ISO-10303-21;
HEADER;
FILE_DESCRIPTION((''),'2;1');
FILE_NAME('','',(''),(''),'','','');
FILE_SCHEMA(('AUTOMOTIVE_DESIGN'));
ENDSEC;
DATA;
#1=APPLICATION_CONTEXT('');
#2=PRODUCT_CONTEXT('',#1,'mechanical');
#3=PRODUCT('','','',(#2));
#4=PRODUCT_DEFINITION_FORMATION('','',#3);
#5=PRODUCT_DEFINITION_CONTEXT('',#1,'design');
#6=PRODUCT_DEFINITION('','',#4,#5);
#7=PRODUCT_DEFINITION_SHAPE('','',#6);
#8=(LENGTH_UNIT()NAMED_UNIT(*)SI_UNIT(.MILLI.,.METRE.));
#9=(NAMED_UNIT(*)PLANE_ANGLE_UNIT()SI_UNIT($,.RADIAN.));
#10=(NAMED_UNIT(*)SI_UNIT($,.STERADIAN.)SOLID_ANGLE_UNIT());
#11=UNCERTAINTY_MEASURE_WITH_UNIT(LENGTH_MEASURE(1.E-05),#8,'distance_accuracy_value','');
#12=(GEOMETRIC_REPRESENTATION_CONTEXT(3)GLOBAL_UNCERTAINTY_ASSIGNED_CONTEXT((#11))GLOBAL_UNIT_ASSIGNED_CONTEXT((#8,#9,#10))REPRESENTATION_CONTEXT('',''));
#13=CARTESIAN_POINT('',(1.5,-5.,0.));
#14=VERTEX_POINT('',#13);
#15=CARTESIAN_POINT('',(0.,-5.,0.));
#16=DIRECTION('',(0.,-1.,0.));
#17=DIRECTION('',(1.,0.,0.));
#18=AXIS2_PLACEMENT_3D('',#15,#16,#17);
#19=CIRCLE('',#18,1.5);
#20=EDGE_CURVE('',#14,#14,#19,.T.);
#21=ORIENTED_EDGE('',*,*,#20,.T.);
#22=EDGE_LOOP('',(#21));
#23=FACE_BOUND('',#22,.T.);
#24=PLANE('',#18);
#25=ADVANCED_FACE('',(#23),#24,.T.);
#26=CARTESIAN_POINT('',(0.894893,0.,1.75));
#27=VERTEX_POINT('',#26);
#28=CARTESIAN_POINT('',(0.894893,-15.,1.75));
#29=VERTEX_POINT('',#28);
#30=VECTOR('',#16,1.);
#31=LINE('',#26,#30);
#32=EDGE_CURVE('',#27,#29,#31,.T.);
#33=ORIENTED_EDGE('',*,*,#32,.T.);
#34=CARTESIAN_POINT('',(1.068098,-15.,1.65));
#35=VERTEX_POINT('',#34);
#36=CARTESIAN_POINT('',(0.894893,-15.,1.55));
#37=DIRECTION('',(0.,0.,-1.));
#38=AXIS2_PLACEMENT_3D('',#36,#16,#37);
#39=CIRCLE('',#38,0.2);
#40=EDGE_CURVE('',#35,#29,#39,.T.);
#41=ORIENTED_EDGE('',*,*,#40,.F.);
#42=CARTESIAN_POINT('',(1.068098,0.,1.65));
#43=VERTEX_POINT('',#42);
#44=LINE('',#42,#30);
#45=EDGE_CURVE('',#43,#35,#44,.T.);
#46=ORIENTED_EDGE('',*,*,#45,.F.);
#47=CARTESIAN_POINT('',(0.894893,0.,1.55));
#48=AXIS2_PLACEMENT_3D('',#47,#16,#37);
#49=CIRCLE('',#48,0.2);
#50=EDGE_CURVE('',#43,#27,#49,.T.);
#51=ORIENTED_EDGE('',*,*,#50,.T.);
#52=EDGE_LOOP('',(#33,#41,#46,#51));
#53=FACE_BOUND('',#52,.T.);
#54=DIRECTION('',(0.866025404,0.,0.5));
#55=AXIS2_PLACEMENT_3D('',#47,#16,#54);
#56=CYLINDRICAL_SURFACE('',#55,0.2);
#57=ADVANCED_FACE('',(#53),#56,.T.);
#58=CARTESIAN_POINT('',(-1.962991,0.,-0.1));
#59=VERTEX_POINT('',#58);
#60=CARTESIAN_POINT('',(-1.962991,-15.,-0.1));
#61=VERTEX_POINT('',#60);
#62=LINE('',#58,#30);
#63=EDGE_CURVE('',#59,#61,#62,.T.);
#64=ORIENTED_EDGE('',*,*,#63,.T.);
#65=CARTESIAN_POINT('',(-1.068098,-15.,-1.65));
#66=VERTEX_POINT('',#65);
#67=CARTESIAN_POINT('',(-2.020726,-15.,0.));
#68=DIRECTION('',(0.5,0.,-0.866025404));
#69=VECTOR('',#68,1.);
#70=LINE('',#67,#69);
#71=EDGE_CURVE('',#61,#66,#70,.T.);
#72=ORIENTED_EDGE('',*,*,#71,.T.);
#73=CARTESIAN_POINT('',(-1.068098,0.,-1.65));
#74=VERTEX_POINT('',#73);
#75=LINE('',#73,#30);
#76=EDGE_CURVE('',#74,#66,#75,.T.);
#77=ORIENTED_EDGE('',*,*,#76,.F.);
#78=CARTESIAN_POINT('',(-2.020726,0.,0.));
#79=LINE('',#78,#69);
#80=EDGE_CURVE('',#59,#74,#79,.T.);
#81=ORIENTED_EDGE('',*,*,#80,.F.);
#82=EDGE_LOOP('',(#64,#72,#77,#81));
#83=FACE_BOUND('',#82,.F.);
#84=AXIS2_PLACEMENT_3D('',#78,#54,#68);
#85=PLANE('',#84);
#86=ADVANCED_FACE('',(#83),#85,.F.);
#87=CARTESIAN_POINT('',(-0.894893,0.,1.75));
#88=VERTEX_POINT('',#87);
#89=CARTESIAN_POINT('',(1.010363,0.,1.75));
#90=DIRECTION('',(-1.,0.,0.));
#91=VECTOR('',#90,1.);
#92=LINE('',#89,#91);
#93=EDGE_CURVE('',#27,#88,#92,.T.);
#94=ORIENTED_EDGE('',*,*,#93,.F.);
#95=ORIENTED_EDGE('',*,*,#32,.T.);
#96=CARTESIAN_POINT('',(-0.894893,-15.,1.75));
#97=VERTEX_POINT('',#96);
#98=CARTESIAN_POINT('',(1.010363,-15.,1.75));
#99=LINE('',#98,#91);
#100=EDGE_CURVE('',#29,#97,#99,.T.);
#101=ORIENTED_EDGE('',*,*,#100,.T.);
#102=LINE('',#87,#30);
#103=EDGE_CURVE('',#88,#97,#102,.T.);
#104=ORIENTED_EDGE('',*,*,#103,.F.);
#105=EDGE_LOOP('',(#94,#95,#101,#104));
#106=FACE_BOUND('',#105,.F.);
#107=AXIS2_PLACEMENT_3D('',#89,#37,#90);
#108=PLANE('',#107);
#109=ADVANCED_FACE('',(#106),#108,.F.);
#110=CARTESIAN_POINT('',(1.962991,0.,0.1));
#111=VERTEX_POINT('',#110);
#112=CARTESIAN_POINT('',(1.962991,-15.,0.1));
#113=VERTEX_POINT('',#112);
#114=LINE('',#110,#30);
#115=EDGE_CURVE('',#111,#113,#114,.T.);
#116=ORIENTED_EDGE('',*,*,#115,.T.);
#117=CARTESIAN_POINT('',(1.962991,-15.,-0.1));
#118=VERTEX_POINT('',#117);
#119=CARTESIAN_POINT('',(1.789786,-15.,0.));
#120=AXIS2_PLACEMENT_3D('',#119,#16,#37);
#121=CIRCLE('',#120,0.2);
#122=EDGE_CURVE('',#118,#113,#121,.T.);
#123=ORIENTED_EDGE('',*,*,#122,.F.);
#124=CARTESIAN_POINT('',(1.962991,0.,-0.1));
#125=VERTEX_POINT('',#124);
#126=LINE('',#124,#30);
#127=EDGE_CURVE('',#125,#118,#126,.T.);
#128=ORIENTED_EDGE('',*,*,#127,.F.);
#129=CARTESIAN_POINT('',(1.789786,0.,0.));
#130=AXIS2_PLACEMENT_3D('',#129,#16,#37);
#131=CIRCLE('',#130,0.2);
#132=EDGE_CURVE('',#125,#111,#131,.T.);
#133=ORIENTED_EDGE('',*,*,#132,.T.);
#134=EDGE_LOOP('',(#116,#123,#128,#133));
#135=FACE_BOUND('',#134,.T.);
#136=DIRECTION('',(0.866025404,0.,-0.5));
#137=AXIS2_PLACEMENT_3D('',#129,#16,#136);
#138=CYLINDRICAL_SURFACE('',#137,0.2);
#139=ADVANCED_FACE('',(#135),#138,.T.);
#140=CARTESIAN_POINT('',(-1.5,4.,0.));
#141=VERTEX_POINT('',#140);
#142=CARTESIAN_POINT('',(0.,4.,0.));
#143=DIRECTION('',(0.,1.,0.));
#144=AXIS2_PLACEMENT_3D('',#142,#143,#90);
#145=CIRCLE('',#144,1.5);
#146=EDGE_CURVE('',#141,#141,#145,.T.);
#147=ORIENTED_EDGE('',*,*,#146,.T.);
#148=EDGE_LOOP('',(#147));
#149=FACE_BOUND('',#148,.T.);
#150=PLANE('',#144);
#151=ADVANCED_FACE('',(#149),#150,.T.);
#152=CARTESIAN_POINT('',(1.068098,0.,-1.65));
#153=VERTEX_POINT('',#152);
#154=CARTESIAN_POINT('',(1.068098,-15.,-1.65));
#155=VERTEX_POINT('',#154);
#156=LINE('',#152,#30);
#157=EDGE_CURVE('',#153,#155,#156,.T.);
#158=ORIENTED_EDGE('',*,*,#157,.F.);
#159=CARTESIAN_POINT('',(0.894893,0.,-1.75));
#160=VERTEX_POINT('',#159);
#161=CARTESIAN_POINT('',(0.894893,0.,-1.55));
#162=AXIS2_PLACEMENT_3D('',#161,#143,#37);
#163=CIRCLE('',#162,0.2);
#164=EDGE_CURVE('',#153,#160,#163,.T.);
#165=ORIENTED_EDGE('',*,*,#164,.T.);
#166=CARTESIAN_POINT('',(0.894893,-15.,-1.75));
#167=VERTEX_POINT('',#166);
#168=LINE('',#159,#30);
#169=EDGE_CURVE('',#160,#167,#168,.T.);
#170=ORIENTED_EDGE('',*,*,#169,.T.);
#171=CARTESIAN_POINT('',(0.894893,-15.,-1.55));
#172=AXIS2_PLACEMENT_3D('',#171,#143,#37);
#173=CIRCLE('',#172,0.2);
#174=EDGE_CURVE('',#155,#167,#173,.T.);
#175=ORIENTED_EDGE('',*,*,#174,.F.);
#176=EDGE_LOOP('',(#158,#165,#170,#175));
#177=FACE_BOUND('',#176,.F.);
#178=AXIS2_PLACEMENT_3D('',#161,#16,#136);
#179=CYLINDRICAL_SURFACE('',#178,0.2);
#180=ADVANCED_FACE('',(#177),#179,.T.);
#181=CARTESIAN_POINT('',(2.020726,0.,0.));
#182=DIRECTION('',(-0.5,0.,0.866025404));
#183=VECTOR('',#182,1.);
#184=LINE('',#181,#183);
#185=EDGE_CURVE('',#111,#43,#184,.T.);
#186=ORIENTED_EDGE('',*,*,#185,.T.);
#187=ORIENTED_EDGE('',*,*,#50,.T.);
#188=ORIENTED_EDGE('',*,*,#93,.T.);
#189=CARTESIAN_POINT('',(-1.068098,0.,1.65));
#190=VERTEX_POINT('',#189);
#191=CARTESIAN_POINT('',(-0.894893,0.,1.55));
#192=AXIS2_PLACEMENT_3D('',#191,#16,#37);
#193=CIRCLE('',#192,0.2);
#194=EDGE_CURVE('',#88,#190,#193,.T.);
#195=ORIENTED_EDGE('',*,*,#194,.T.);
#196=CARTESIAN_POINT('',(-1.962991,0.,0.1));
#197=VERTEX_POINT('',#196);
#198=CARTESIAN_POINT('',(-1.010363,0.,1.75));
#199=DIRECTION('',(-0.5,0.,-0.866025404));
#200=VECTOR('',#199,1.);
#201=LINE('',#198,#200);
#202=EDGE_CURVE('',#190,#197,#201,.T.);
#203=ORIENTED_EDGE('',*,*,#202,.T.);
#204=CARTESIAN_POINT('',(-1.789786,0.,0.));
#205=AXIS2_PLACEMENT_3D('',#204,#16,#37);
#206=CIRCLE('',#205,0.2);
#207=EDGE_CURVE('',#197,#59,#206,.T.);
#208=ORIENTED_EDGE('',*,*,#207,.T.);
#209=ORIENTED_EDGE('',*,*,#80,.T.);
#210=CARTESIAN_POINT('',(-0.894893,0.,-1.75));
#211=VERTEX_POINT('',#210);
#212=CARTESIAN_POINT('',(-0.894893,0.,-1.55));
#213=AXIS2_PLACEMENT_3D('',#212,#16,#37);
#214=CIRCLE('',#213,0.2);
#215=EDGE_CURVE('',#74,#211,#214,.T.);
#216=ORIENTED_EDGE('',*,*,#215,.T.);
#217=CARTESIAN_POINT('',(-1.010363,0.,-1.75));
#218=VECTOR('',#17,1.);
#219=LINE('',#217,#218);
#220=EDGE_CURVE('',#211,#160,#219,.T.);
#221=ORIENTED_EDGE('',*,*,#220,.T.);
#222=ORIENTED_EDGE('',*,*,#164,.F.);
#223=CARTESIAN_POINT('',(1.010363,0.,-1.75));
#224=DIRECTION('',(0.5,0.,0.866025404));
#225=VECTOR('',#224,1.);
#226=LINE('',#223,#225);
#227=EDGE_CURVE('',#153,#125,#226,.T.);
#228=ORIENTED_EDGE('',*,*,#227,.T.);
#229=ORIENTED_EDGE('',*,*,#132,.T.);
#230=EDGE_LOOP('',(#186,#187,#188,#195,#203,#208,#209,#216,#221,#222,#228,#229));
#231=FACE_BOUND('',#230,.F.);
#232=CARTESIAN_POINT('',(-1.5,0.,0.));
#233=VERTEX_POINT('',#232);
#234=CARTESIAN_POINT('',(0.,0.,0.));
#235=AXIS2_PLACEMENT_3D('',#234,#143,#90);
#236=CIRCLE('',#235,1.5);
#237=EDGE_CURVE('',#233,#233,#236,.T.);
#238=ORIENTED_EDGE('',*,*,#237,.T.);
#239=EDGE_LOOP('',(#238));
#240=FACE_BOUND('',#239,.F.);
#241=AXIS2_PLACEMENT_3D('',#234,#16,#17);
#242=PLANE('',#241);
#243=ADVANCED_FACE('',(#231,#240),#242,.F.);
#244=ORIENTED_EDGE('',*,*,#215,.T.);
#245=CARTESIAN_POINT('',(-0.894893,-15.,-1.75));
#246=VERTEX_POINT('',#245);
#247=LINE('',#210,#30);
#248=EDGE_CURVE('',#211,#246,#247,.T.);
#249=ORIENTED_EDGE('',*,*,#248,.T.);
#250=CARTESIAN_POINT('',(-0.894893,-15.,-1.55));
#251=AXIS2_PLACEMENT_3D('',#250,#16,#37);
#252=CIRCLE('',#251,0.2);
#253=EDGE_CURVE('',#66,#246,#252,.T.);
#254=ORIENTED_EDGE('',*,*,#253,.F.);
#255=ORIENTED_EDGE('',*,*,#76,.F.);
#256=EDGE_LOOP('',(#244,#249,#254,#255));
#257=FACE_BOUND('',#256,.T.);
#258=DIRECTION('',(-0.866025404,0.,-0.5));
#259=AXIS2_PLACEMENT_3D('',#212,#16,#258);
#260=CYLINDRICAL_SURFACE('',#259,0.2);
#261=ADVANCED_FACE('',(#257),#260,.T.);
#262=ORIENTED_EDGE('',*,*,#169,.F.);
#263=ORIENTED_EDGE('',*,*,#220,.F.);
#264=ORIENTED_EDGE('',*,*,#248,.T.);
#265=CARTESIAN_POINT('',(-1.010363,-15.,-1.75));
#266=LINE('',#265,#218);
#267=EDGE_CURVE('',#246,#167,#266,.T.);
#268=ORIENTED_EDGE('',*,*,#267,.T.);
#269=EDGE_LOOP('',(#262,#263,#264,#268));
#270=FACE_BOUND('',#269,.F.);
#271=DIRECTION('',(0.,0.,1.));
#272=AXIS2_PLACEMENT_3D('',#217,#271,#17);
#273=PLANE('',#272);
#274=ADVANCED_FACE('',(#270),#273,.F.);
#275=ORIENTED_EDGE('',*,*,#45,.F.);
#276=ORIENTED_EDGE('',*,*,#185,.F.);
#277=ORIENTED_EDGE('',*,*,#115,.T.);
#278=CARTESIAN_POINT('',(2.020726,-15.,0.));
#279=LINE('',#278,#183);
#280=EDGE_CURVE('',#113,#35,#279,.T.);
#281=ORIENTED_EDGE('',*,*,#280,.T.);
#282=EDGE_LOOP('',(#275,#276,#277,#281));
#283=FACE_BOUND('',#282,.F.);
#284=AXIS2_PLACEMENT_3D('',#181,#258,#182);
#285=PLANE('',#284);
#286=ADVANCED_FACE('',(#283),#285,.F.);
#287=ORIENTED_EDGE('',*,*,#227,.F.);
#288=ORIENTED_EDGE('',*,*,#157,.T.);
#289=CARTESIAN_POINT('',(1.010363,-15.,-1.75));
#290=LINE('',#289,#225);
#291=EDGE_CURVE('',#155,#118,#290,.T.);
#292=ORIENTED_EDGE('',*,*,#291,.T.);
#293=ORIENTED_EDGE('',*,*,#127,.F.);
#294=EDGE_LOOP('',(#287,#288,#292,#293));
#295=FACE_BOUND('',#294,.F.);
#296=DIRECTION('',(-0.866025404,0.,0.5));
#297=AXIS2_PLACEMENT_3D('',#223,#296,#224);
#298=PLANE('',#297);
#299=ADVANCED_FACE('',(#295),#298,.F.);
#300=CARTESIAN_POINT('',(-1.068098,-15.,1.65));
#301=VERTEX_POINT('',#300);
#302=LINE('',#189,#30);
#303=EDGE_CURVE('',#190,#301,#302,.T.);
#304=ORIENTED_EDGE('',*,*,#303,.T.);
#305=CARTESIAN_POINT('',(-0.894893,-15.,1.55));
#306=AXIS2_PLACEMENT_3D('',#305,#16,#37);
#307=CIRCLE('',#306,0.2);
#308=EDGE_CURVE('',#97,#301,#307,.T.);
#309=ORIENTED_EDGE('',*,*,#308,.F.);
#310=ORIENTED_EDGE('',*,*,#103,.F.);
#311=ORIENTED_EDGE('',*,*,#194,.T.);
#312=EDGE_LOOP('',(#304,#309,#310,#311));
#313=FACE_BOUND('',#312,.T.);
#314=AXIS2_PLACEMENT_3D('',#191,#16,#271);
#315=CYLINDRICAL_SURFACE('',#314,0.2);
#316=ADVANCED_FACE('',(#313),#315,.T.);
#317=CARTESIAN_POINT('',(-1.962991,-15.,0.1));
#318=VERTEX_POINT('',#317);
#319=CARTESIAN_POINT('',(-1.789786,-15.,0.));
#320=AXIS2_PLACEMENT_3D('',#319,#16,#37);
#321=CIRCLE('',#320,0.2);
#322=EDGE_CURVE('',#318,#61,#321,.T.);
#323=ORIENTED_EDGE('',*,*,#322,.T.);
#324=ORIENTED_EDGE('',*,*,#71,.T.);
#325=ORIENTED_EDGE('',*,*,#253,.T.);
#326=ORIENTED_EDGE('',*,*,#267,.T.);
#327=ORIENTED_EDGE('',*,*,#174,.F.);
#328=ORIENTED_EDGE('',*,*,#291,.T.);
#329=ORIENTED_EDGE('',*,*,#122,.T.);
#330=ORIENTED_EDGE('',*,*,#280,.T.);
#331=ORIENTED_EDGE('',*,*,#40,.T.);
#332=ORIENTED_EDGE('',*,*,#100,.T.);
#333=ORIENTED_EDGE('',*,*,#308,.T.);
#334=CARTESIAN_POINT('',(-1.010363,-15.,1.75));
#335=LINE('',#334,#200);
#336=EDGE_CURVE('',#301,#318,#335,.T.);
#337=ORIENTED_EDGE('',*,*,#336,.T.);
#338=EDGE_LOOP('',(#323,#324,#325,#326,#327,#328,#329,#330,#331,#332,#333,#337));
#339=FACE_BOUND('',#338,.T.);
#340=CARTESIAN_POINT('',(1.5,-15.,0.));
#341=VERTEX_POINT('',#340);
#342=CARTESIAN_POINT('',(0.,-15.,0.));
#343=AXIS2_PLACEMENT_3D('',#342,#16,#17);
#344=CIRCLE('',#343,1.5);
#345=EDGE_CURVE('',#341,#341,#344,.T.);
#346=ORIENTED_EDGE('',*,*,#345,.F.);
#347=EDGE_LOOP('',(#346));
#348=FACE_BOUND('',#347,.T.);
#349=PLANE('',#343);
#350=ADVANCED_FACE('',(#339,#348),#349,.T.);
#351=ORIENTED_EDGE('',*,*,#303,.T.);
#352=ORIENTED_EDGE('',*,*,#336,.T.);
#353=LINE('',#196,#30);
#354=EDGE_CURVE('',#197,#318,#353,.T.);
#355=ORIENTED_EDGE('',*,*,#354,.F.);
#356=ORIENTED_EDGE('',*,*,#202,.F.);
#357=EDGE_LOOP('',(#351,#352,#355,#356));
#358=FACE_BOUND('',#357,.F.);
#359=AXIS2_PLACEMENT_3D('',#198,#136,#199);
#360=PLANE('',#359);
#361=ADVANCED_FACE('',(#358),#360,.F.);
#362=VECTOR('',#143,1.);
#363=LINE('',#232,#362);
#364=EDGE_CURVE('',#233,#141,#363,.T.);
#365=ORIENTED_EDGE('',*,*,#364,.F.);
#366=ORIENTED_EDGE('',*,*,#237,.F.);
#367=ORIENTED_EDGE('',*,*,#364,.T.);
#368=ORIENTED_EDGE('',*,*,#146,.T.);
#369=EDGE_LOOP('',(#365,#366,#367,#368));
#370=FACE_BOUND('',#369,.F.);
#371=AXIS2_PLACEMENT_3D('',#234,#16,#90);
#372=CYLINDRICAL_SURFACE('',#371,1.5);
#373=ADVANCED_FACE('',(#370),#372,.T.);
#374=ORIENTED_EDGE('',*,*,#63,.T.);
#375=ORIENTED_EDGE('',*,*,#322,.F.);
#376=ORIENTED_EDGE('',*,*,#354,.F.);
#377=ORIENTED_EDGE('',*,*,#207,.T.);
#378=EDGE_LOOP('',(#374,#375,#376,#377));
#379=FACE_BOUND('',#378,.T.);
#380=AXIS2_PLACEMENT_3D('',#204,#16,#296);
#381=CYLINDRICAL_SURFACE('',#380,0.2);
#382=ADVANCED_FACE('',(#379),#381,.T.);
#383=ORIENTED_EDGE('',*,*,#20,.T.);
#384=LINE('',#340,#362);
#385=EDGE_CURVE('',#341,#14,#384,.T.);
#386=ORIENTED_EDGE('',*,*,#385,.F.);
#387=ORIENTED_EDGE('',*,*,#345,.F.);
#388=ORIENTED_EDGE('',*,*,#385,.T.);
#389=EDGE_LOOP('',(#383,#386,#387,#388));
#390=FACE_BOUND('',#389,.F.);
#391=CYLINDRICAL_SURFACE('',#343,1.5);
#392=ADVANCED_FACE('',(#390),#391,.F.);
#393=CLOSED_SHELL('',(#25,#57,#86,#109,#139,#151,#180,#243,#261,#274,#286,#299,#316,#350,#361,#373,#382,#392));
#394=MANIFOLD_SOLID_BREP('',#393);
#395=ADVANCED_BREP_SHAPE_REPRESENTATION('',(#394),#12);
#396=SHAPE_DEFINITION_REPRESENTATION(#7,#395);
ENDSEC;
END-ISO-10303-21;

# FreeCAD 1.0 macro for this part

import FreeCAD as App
import Part
import Sketcher

V = App.Vector
Q = App.Units.Quantity


def edges_at(feature, points):
    """Names of the edges that pass closest to the given points."""
    edges = feature.Shape.Edges
    near = lambda p: min(range(len(edges)), key=lambda i: edges[i].distToShape(Part.Vertex(*p))[0])
    return sorted({f"Edge{near(p) + 1}" for p in points})

doc = App.newDocument("Part")
body = doc.addObject("PartDesign::Body", "Body")

# Sketch on XZ plane
sketch1 = doc.addObject("Sketcher::SketchObject", "Sketch")
body.addObject(sketch1)
sketch1.AttachmentSupport = (doc.XZ_Plane, [""])
sketch1.MapMode = "FlatFace"
sketch1.addGeometry(Part.LineSegment(V(1, -1.8, 0), V(2, 0, 0)), False)
sketch1.addGeometry(Part.LineSegment(V(2, 0, 0), V(1, 1.8, 0)), False)
sketch1.addGeometry(Part.LineSegment(V(1, 1.8, 0), V(-1, 1.8, 0)), False)
sketch1.addGeometry(Part.LineSegment(V(-1, 1.8, 0), V(-2, 0, 0)), False)
sketch1.addGeometry(Part.LineSegment(V(-2, 0, 0), V(-1, -1.8, 0)), False)
sketch1.addGeometry(Part.LineSegment(V(-1, -1.8, 0), V(1, -1.8, 0)), False)
sketch1.addConstraint(Sketcher.Constraint("Coincident", 0, 2, 1, 1))
sketch1.addConstraint(Sketcher.Constraint("Coincident", 1, 2, 2, 1))
sketch1.addConstraint(Sketcher.Constraint("Coincident", 2, 2, 3, 1))
sketch1.addConstraint(Sketcher.Constraint("Coincident", 3, 2, 4, 1))
sketch1.addConstraint(Sketcher.Constraint("Coincident", 4, 2, 5, 1))
sketch1.addConstraint(Sketcher.Constraint("Coincident", 5, 2, 0, 1))
sketch1.addConstraint(Sketcher.Constraint("Horizontal", 2))
sketch1.addConstraint(Sketcher.Constraint("Horizontal", 5))
sketch1.addConstraint(Sketcher.Constraint("Symmetric", 0, 2, 3, 2, -1, 1))
sketch1.addConstraint(Sketcher.Constraint("Symmetric", 1, 2, 4, 2, -1, 1))
sketch1.addConstraint(Sketcher.Constraint("PointOnObject", 0, 2, -1))
sketch1.addConstraint(Sketcher.Constraint("Parallel", 0, 3))
sketch1.addConstraint(Sketcher.Constraint("Vertical", 2, 2, 4, 2))
sketch1.addConstraint(Sketcher.Constraint("Angle", 0, Q("60 deg")))
sketch1.addConstraint(Sketcher.Constraint("DistanceY", 4, 2, 2, 2, 3.5))
sketch1.addConstraint(Sketcher.Constraint("DistanceX", 2, 2, 2, 1, 2.020726))
pad1 = doc.addObject("PartDesign::Pad", "Pad")
body.addObject(pad1)
pad1.Profile = sketch1
pad1.Length = 15
doc.recompute()

fillet = doc.addObject("PartDesign::Fillet", "Fillet")
body.addObject(fillet)
fillet.Base = (pad1, edges_at(pad1, [
    (-1.01, -7.5, 1.75),
    (1.01, -7.5, 1.75),
    (2.021, -7.5, 0),
    (1.01, -7.5, -1.75),
    (-1.01, -7.5, -1.75),
    (-2.021, -7.5, 0),
]))
fillet.Radius = 0.2

# Sketch on XZ plane
sketch2 = doc.addObject("Sketcher::SketchObject", "Sketch001")
body.addObject(sketch2)
sketch2.AttachmentSupport = (doc.XZ_Plane, [""])
sketch2.MapMode = "FlatFace"
sketch2.AttachmentOffset = App.Placement(V(0, 0, 15), App.Rotation())
sketch2.addGeometry(Part.Circle(V(0, 0, 0), V(0, 0, 1), 1.5), False)
sketch2.addConstraint(Sketcher.Constraint("Coincident", 0, 3, -1, 1))
sketch2.addConstraint(Sketcher.Constraint("Diameter", 0, 3.0))
pocket1 = doc.addObject("PartDesign::Pocket", "Pocket")
body.addObject(pocket1)
pocket1.Profile = sketch2
pocket1.Length = 10

# Sketch on XZ plane
sketch3 = doc.addObject("Sketcher::SketchObject", "Sketch002")
body.addObject(sketch3)
sketch3.AttachmentSupport = (doc.XZ_Plane, [""])
sketch3.MapMode = "FlatFace"
sketch3.addGeometry(Part.Circle(V(0, 0, 0), V(0, 0, 1), 1.5), False)
sketch3.addConstraint(Sketcher.Constraint("Coincident", 0, 3, -1, 1))
sketch3.addConstraint(Sketcher.Constraint("Diameter", 0, 3.0))
pad2 = doc.addObject("PartDesign::Pad", "Pad001")
body.addObject(pad2)
pad2.Profile = sketch3
pad2.Length = 4
pad2.Reversed = True

doc.recompute()
